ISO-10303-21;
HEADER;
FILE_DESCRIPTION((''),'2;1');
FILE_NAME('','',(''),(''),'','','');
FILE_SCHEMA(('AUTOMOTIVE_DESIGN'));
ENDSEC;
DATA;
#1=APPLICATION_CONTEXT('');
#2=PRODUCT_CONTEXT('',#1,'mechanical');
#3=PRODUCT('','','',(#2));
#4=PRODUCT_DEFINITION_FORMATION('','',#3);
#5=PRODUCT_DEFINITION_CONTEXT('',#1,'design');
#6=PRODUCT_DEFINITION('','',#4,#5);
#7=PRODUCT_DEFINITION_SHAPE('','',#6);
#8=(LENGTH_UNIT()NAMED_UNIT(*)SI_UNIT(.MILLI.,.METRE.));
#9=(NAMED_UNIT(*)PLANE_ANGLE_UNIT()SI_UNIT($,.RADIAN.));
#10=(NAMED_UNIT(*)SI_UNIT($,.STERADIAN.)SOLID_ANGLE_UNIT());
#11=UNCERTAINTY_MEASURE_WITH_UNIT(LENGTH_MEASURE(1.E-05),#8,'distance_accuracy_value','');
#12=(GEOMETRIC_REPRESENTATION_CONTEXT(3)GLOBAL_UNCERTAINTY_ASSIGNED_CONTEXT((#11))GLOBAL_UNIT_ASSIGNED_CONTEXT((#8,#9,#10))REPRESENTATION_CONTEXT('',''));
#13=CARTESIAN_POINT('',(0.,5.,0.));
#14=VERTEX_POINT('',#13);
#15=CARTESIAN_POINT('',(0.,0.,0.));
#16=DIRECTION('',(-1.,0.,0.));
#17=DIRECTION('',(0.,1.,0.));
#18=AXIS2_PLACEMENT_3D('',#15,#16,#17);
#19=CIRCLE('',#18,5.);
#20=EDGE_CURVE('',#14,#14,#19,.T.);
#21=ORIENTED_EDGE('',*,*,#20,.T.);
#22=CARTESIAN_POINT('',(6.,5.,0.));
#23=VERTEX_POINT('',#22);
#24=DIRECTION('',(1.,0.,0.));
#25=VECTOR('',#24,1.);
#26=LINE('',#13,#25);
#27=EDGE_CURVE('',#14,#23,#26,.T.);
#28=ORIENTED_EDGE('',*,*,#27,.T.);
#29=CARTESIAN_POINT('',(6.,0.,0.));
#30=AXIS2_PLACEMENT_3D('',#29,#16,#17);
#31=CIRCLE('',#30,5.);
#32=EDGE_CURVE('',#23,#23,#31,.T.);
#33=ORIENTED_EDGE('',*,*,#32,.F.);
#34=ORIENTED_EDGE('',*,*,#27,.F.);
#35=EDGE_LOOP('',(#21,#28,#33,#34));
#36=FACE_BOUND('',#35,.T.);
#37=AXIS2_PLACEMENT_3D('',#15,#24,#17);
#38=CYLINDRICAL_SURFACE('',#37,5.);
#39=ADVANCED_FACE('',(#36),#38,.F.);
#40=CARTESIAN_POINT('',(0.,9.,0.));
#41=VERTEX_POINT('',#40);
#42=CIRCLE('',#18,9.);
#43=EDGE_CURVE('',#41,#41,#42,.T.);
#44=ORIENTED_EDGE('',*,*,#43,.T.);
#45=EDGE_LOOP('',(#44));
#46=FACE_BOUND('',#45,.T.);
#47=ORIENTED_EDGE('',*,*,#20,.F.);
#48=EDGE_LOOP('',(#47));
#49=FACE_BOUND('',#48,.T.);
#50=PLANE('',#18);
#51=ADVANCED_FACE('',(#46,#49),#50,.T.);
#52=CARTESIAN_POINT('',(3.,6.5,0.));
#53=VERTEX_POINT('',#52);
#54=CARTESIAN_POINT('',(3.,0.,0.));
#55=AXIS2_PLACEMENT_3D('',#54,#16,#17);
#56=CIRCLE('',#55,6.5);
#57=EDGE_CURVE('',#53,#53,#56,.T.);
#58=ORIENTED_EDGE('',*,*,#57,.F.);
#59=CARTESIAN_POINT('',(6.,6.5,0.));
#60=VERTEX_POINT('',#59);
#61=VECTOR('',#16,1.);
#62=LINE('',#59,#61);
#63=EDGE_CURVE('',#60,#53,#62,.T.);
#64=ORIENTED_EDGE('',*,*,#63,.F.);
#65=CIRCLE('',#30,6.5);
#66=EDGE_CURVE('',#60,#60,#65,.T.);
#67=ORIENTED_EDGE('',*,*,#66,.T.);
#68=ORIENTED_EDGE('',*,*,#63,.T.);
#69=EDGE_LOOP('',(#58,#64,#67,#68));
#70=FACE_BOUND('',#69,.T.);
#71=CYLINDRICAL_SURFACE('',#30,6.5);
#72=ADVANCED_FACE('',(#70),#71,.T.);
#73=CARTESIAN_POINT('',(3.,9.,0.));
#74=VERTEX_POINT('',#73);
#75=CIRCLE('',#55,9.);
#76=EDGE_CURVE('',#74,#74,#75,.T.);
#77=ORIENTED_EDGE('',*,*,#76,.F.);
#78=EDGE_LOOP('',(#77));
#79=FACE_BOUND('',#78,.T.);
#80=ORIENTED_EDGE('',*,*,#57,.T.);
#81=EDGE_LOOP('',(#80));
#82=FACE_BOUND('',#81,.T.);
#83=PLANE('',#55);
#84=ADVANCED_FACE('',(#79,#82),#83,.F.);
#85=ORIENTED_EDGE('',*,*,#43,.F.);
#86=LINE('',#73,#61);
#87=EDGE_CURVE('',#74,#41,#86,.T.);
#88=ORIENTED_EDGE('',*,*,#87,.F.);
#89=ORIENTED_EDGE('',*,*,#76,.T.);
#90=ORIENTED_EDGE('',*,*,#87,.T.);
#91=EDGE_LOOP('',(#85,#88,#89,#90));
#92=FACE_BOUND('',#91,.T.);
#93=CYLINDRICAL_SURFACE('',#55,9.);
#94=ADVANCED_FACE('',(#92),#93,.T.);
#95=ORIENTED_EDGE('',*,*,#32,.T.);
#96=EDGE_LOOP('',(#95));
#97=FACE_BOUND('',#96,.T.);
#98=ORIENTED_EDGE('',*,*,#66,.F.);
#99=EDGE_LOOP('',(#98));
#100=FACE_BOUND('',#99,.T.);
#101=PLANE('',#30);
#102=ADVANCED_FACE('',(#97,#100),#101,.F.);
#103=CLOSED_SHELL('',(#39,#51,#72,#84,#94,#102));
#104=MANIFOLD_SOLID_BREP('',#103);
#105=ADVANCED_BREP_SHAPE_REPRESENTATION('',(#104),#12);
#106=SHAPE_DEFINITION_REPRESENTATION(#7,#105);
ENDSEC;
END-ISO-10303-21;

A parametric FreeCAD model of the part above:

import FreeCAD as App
import Part
import Sketcher

V = App.Vector
Q = App.Units.Quantity

doc = App.newDocument("Part")
body = doc.addObject("PartDesign::Body", "Body")

sketch1 = doc.addObject("Sketcher::SketchObject", "Sketch")
body.addObject(sketch1)
sketch1.AttachmentSupport = (doc.XY_Plane, [""])
sketch1.MapMode = "FlatFace"
sketch1.addGeometry(Part.LineSegment(V(0, 9, 0), V(0, 5, 0)), False)
sketch1.addGeometry(Part.LineSegment(V(0, 5, 0), V(6, 5, 0)), False)
sketch1.addGeometry(Part.LineSegment(V(6, 5, 0), V(6, 6.5, 0)), False)
sketch1.addGeometry(Part.LineSegment(V(6, 6.5, 0), V(3, 6.5, 0)), False)
sketch1.addGeometry(Part.LineSegment(V(3, 6.5, 0), V(3, 9, 0)), False)
sketch1.addGeometry(Part.LineSegment(V(3, 9, 0), V(0, 9, 0)), False)
sketch1.addConstraint(Sketcher.Constraint("Coincident", 0, 2, 1, 1))
sketch1.addConstraint(Sketcher.Constraint("Coincident", 1, 2, 2, 1))
sketch1.addConstraint(Sketcher.Constraint("Coincident", 2, 2, 3, 1))
sketch1.addConstraint(Sketcher.Constraint("Coincident", 3, 2, 4, 1))
sketch1.addConstraint(Sketcher.Constraint("Coincident", 4, 2, 5, 1))
sketch1.addConstraint(Sketcher.Constraint("Coincident", 5, 2, 0, 1))
sketch1.addConstraint(Sketcher.Constraint("Vertical", 0))
sketch1.addConstraint(Sketcher.Constraint("Horizontal", 1))
sketch1.addConstraint(Sketcher.Constraint("Vertical", 2))
sketch1.addConstraint(Sketcher.Constraint("Horizontal", 3))
sketch1.addConstraint(Sketcher.Constraint("Vertical", 4))
sketch1.addConstraint(Sketcher.Constraint("Horizontal", 5))
sketch1.addConstraint(Sketcher.Constraint("PointOnObject", 0, 2, -2))
sketch1.addConstraint(Sketcher.Constraint("Equal", 3, 5))
sketch1.addConstraint(Sketcher.Constraint("DistanceX", 1, 1, 1, 2, Q("6 mm")))
sketch1.addConstraint(Sketcher.Constraint("DistanceY", -1, 1, 0, 2, Q("5 mm")))
sketch1.addConstraint(Sketcher.Constraint("DistanceY", -1, 1, 4, 2, Q("9 mm")))
sketch1.addConstraint(Sketcher.Constraint("DistanceY", -1, 1, 2, 2, Q("6.5 mm")))
revolution = doc.addObject("PartDesign::Revolution", "Revolution")
body.addObject(revolution)
revolution.Profile = sketch1
revolution.ReferenceAxis = (sketch1, ["H_Axis"])
revolution.Angle = 360

doc.recompute()
